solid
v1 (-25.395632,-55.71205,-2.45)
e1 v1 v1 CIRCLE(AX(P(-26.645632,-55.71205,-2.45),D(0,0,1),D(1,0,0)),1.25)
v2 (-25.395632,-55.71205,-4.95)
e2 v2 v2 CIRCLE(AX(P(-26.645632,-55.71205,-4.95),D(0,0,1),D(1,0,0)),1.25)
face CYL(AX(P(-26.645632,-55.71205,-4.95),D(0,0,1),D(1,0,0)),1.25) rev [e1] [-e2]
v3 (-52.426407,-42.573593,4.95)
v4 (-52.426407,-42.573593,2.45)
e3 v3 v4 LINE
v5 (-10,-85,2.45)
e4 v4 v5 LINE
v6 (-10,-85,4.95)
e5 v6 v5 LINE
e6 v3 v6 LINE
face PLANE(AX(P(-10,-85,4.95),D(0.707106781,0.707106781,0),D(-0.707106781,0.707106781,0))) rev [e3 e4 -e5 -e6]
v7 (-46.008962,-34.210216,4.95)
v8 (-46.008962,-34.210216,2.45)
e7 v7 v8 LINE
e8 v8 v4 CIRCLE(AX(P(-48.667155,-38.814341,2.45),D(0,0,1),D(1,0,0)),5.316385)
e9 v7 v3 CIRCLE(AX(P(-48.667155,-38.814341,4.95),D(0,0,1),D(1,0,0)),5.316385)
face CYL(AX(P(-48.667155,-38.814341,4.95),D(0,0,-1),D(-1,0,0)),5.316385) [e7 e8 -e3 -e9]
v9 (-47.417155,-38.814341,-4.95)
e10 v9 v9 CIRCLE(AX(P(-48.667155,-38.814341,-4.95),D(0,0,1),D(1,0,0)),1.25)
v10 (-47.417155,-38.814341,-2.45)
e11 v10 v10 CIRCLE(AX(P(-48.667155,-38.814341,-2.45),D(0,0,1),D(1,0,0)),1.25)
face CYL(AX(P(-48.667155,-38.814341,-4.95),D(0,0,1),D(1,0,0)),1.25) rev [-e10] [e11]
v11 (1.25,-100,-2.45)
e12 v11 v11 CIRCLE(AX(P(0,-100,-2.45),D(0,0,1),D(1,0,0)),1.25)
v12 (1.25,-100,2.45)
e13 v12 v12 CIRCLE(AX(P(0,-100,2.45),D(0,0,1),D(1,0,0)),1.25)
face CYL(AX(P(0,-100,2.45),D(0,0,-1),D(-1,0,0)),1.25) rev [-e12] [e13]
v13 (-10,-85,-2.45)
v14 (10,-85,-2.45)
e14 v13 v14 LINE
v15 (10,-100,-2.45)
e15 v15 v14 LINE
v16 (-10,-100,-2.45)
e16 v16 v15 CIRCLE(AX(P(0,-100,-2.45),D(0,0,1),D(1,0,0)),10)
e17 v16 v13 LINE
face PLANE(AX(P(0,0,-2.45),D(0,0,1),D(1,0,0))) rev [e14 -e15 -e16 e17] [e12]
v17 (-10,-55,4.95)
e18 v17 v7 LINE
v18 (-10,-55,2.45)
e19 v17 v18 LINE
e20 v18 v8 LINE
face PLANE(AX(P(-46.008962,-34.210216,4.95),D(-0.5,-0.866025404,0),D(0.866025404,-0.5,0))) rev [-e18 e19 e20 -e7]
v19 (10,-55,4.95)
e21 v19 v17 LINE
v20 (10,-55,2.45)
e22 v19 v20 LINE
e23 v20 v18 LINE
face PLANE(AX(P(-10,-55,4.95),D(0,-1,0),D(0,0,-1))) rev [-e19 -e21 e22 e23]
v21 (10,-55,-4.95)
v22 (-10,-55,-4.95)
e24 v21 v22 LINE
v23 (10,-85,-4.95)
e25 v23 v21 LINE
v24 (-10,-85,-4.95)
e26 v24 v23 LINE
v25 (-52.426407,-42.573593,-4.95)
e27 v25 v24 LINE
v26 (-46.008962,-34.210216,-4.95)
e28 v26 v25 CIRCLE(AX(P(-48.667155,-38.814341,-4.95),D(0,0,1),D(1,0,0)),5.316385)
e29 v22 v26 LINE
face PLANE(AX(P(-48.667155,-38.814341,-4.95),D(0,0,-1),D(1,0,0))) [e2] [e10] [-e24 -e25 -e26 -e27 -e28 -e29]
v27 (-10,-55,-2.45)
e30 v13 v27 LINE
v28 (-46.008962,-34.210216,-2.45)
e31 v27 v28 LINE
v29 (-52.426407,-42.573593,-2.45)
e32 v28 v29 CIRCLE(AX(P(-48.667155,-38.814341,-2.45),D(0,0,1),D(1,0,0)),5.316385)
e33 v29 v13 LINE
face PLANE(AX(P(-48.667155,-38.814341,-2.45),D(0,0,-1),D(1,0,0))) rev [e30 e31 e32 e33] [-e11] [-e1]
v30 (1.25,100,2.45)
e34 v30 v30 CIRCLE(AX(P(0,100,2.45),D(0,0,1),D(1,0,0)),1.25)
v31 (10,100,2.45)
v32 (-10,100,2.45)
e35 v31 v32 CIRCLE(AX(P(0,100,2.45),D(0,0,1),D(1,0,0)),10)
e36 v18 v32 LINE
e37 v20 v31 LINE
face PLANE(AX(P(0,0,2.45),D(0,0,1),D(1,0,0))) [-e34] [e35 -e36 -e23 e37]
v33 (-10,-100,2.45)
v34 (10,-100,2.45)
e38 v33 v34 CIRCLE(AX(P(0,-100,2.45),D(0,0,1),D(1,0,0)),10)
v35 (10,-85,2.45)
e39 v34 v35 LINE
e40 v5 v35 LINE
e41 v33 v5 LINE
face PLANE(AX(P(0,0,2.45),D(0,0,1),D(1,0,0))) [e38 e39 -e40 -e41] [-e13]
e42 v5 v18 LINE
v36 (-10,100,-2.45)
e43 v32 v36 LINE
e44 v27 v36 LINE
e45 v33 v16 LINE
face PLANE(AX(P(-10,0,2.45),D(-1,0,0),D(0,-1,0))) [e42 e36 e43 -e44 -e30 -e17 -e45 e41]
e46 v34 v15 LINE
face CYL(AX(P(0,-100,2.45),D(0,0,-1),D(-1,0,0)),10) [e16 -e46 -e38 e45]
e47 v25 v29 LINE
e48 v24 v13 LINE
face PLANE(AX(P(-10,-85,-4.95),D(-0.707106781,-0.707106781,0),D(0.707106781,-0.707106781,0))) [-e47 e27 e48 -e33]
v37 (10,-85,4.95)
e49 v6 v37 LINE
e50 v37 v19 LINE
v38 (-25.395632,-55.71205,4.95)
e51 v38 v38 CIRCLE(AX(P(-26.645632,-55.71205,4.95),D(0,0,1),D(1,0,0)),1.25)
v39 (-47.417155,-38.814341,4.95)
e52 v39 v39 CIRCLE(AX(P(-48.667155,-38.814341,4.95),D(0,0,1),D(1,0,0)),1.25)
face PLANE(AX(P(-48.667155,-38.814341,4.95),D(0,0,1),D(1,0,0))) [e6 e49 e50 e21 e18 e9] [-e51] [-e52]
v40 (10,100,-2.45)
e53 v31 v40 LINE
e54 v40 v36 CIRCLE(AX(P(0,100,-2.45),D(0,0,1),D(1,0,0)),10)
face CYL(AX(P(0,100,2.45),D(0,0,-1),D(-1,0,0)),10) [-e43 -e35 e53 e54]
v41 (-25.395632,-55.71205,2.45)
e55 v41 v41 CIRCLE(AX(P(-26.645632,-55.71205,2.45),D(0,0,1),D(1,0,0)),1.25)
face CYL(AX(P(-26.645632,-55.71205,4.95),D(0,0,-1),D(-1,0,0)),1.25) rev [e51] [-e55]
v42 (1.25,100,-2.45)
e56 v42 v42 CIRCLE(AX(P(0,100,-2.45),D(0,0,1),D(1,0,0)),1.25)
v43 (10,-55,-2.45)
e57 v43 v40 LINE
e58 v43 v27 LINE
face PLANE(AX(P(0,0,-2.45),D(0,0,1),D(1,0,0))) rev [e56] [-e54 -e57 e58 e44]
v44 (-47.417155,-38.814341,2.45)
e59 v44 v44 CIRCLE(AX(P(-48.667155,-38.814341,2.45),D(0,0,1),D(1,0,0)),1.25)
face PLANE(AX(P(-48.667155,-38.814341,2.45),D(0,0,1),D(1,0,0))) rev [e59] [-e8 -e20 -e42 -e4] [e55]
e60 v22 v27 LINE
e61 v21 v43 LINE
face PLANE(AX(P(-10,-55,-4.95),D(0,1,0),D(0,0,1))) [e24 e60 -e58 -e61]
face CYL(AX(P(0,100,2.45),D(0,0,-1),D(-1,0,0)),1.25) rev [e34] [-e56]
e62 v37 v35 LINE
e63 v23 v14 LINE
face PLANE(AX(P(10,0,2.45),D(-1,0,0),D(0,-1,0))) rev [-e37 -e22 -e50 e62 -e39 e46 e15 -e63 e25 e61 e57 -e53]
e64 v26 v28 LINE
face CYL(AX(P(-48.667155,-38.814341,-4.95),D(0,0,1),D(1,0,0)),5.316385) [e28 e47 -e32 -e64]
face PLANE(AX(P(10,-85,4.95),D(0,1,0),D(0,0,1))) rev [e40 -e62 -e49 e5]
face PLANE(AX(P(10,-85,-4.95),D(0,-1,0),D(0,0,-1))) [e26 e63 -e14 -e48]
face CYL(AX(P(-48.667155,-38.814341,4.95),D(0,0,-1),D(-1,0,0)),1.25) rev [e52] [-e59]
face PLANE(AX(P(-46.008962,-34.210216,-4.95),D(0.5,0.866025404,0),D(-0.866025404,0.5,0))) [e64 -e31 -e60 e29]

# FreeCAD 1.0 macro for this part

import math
import FreeCAD as App
import Part
import Sketcher

V = App.Vector
Q = App.Units.Quantity

doc = App.newDocument("Part")
body = doc.addObject("PartDesign::Body", "Body")

# Sketch on XY plane
sketch1 = doc.addObject("Sketcher::SketchObject", "Sketch")
body.addObject(sketch1)
sketch1.AttachmentSupport = (doc.XY_Plane, [""])
sketch1.MapMode = "FlatFace"
sketch1.addGeometry(Part.LineSegment(V(-10, 100, 0), V(-10, -100, 0)), False)
sketch1.addGeometry(Part.ArcOfCircle(Part.Circle(V(0, -100, 0), V(0, 0, 1), 10), math.radians(180), math.radians(360)), False)
sketch1.addGeometry(Part.LineSegment(V(10, -100, 0), V(10, 100, 0)), False)
sketch1.addGeometry(Part.ArcOfCircle(Part.Circle(V(0, 100, 0), V(0, 0, 1), 10), math.radians(0), math.radians(180)), False)
sketch1.addGeometry(Part.Circle(V(0, -100, 0), V(0, 0, 1), 1.2), False)
sketch1.addGeometry(Part.Circle(V(0, 100, 0), V(0, 0, 1), 1.2), False)
sketch1.addConstraint(Sketcher.Constraint("Tangent", 0, 2, 1, 1))
sketch1.addConstraint(Sketcher.Constraint("Tangent", 1, 2, 2, 1))
sketch1.addConstraint(Sketcher.Constraint("Tangent", 2, 2, 3, 1))
sketch1.addConstraint(Sketcher.Constraint("Tangent", 3, 2, 0, 1))
sketch1.addConstraint(Sketcher.Constraint("Vertical", 0))
sketch1.addConstraint(Sketcher.Constraint("Vertical", 2))
sketch1.addConstraint(Sketcher.Constraint("Coincident", 4, 3, 1, 3))
sketch1.addConstraint(Sketcher.Constraint("Coincident", 5, 3, 3, 3))
sketch1.addConstraint(Sketcher.Constraint("Equal", 4, 5))
sketch1.addConstraint(Sketcher.Constraint("Symmetric", 1, 3, 3, 3, -1, 1))
sketch1.addConstraint(Sketcher.Constraint("Radius", 1, 10.0))
sketch1.addConstraint(Sketcher.Constraint("Diameter", 4, 2.5))
sketch1.addConstraint(Sketcher.Constraint("DistanceY", 0, 2, 0, 1, 200.0))
pad1 = doc.addObject("PartDesign::Pad", "Pad")
body.addObject(pad1)
pad1.Profile = sketch1
pad1.Length = 4.9
pad1.Midplane = True

# Sketch on XY plane
sketch2 = doc.addObject("Sketcher::SketchObject", "Sketch001")
body.addObject(sketch2)
sketch2.AttachmentSupport = (doc.XY_Plane, [""])
sketch2.MapMode = "FlatFace"
sketch2.AttachmentOffset = App.Placement(V(0, 0, 2.45), App.Rotation())
sketch2.addGeometry(Part.LineSegment(V(-52.4, -42.6, 0), V(-10, -85, 0)), False)
sketch2.addGeometry(Part.LineSegment(V(-10, -85, 0), V(10, -85, 0)), False)
sketch2.addGeometry(Part.LineSegment(V(10, -85, 0), V(10, -55, 0)), False)
sketch2.addGeometry(Part.LineSegment(V(10, -55, 0), V(-10, -55, 0)), False)
sketch2.addGeometry(Part.LineSegment(V(-10, -55, 0), V(-46, -34.2, 0)), False)
sketch2.addGeometry(Part.ArcOfCircle(Part.Circle(V(-48.7, -38.8, 0), V(0, 0, 1), 5.3), math.radians(60), math.radians(225)), False)
sketch2.addGeometry(Part.Circle(V(-26.6, -55.7, 0), V(0, 0, 1), 1.2), False)
sketch2.addGeometry(Part.Circle(V(-48.7, -38.8, 0), V(0, 0, 1), 1.2), False)
sketch2.addConstraint(Sketcher.Constraint("Coincident", 0, 2, 1, 1))
sketch2.addConstraint(Sketcher.Constraint("Coincident", 1, 2, 2, 1))
sketch2.addConstraint(Sketcher.Constraint("Coincident", 2, 2, 3, 1))
sketch2.addConstraint(Sketcher.Constraint("Coincident", 3, 2, 4, 1))
sketch2.addConstraint(Sketcher.Constraint("Tangent", 4, 2, 5, 1))
sketch2.addConstraint(Sketcher.Constraint("Tangent", 5, 2, 0, 1))
sketch2.addConstraint(Sketcher.Constraint("Horizontal", 1))
sketch2.addConstraint(Sketcher.Constraint("Vertical", 2))
sketch2.addConstraint(Sketcher.Constraint("Horizontal", 3))
sketch2.addConstraint(Sketcher.Constraint("Coincident", 7, 3, 5, 3))
sketch2.addConstraint(Sketcher.Constraint("Equal", 6, 7))
sketch2.addConstraint(Sketcher.Constraint("Vertical", 0, 2, 3, 2))
sketch2.addConstraint(Sketcher.Constraint("Diameter", 6, 2.5))
sketch2.addConstraint(Sketcher.Constraint("DistanceX", 1, 1, 1, 2, 20.0))
sketch2.addConstraint(Sketcher.Constraint("DistanceY", 2, 1, 2, 2, 30.0))
sketch2.addConstraint(Sketcher.Constraint("Angle", 0, Q("-45 deg")))
sketch2.addConstraint(Sketcher.Constraint("Angle", 4, Q("150 deg")))
sketch2.addConstraint(Sketcher.Constraint("Distance", 0, 60.0))
sketch2.addConstraint(Sketcher.Constraint("DistanceX", 0, 2, -1, 1, 10.0))
sketch2.addConstraint(Sketcher.Constraint("DistanceY", 0, 2, -1, 1, 85.0))
sketch2.addConstraint(Sketcher.Constraint("DistanceX", 6, 3, -1, 1, 26.645632))
sketch2.addConstraint(Sketcher.Constraint("DistanceY", 6, 3, -1, 1, 55.71205))
pad2 = doc.addObject("PartDesign::Pad", "Pad001")
body.addObject(pad2)
pad2.Profile = sketch2
pad2.Length = 2.5
doc.recompute()

mirrored = doc.addObject("PartDesign::Mirrored", "Mirrored")
body.addObject(mirrored)
mirrored.Originals = [pad2]
mirrored.MirrorPlane = (doc.XY_Plane, [""])
body.Tip = mirrored

doc.recompute()
